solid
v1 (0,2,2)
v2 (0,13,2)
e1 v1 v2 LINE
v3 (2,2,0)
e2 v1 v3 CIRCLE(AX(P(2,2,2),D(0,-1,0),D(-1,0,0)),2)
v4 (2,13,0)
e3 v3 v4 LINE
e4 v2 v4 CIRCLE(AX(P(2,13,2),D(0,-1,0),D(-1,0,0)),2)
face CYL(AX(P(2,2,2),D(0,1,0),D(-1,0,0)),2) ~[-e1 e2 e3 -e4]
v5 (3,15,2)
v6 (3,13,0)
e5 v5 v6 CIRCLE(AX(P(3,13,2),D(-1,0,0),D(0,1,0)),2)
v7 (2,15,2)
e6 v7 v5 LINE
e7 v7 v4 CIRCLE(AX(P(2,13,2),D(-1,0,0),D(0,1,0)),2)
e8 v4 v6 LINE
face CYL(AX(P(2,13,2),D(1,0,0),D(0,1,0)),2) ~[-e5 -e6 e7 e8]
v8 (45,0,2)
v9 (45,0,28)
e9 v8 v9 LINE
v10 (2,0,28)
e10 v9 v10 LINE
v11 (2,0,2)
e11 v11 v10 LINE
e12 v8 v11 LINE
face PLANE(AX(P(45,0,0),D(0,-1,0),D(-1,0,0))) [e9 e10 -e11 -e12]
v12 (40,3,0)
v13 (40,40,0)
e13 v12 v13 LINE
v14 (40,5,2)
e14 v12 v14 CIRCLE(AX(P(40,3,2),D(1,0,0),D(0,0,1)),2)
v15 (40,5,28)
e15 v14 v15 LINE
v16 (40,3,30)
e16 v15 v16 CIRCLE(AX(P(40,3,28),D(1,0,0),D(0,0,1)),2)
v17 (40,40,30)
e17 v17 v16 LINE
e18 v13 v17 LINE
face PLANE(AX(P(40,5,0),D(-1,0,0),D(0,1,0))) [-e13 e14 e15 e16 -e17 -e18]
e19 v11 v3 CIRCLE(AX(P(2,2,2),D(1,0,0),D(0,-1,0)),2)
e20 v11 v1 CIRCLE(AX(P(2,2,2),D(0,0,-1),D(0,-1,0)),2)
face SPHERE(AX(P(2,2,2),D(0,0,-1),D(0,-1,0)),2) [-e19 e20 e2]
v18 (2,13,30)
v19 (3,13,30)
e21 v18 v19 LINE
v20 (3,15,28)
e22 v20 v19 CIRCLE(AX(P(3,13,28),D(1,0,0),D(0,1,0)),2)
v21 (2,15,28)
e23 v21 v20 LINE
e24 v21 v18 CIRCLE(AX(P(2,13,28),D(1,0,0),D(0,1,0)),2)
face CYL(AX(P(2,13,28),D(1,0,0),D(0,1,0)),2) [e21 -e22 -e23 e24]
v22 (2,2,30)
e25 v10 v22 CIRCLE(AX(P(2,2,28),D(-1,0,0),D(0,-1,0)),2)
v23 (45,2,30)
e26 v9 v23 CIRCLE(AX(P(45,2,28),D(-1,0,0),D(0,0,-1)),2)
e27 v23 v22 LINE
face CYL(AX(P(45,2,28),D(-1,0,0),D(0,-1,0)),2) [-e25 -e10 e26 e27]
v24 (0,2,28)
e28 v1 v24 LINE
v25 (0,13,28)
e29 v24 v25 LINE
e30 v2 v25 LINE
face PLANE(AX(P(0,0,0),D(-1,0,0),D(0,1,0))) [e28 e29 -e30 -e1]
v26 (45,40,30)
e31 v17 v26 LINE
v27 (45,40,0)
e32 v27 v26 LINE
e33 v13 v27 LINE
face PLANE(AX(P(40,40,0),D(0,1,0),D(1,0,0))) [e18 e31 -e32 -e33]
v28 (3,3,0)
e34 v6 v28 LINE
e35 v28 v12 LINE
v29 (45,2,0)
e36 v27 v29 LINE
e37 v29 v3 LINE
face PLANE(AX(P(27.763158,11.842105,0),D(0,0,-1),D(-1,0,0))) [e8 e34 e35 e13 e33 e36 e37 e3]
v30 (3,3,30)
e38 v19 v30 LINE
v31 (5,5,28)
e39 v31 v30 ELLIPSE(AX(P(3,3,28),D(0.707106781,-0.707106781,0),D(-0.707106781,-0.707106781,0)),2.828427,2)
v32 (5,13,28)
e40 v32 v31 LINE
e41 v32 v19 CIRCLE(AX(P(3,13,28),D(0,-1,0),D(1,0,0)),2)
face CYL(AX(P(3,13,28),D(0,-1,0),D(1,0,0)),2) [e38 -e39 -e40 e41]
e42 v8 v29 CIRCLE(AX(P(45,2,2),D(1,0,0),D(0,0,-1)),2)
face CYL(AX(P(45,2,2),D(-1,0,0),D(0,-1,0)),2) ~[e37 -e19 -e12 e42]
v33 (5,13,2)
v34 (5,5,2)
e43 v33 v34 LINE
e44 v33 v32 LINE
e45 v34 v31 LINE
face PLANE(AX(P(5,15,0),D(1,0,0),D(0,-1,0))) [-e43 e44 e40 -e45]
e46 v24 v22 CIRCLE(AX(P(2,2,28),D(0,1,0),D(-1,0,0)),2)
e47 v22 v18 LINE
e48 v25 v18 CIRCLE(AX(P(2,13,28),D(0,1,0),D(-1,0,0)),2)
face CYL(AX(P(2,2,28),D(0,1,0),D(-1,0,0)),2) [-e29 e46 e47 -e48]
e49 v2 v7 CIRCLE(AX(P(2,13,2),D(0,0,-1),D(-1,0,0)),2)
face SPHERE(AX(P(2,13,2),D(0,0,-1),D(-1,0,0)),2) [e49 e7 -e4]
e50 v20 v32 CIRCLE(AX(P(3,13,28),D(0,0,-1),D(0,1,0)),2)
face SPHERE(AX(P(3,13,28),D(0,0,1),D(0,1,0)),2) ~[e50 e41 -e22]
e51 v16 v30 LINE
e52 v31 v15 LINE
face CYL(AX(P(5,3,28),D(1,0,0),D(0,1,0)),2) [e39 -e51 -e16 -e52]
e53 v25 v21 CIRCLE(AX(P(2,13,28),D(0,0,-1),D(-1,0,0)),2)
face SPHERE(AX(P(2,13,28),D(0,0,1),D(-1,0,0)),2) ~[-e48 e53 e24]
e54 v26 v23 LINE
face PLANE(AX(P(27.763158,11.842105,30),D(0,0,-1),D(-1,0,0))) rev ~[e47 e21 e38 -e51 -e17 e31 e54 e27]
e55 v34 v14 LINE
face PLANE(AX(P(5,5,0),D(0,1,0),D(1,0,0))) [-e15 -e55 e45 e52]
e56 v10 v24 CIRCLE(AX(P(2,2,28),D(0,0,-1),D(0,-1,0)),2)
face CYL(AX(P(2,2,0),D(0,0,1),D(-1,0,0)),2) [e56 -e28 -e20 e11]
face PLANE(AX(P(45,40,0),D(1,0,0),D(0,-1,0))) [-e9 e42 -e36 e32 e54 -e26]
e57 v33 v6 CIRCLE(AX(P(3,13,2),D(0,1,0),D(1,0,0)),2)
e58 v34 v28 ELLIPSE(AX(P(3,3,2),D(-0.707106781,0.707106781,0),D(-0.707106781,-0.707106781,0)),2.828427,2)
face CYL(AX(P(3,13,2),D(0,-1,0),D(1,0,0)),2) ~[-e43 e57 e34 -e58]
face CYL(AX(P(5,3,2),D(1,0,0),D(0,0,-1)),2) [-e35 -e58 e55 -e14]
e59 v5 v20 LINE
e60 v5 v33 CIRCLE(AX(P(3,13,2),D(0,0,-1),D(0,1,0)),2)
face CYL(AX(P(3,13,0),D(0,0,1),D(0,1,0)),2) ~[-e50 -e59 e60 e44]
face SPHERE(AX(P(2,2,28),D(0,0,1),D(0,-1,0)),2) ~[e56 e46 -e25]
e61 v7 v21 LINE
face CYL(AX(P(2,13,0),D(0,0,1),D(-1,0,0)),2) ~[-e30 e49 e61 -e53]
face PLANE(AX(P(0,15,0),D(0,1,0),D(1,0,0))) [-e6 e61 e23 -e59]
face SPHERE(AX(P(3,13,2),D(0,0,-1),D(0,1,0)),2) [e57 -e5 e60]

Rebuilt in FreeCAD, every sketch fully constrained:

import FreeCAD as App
import Part
import Sketcher
from FreeCAD import Vector


def edges_at(feature, points):
    """Names of the edges that pass closest to the given points."""
    edges = feature.Shape.Edges
    near = lambda p: min(range(len(edges)), key=lambda i: edges[i].distToShape(Part.Vertex(*p))[0])
    return sorted({f"Edge{near(p) + 1}" for p in points})

doc = App.newDocument("Part")
params = doc.addObject("Spreadsheet::Sheet", "Params")
for row, (alias, value) in enumerate([
    ("sketch1_width", "5 mm"),
    ("sketch1_width2", "35 mm"),
    ("sketch1_height", "40 mm"),
    ("sketch1_height2", "10 mm"),
    ("pad1_length", "30 mm"),
    ("fillet_radius", "2 mm"),
    ("fillet2_radius", "2 mm"),
    ("fillet3_radius", "2 mm"),
    ("fillet4_radius", "2 mm"),
    ("fillet5_radius", "2 mm"),
    ("fillet6_radius", "2 mm"),
    ("fillet7_radius", "2 mm"),
], start=1):
    params.set(f"A{row}", alias)
    params.set(f"B{row}", "=" + value)
    params.setAlias(f"B{row}", alias)

body = doc.addObject("PartDesign::Body", "Body")

sketch1 = body.newObject("Sketcher::SketchObject", "Sketch")
sketch1.AttachmentSupport = (doc.getObject("XY_Plane"), [""])
sketch1.MapMode = "FlatFace"
sketch1.addGeometry([
    Part.LineSegment(Vector(45, 0, 0), Vector(45, 40, 0)),
    Part.LineSegment(Vector(45, 40, 0), Vector(40, 40, 0)),
    Part.LineSegment(Vector(40, 40, 0), Vector(40, 5, 0)),
    Part.LineSegment(Vector(40, 5, 0), Vector(5, 5, 0)),
    Part.LineSegment(Vector(5, 5, 0), Vector(5, 15, 0)),
    Part.LineSegment(Vector(5, 15, 0), Vector(0, 15, 0)),
    Part.LineSegment(Vector(0, 15, 0), Vector(0, 0, 0)),
    Part.LineSegment(Vector(0, 0, 0), Vector(45, 0, 0)),
], False)
sketch1.addConstraint([
    Sketcher.Constraint("Coincident", 0, 2, 1, 1),
    Sketcher.Constraint("Coincident", 1, 2, 2, 1),
    Sketcher.Constraint("Coincident", 2, 2, 3, 1),
    Sketcher.Constraint("Coincident", 3, 2, 4, 1),
    Sketcher.Constraint("Coincident", 4, 2, 5, 1),
    Sketcher.Constraint("Coincident", 5, 2, 6, 1),
    Sketcher.Constraint("Coincident", 6, 2, 7, 1),
    Sketcher.Constraint("Coincident", 7, 2, 0, 1),
    Sketcher.Constraint("Vertical", 0),
    Sketcher.Constraint("Horizontal", 1),
    Sketcher.Constraint("Vertical", 2),
    Sketcher.Constraint("Horizontal", 3),
    Sketcher.Constraint("Vertical", 4),
    Sketcher.Constraint("Horizontal", 5),
    Sketcher.Constraint("Vertical", 6),
    Sketcher.Constraint("Horizontal", 7),
    Sketcher.Constraint("Coincident", 6, 2, -1, 1),
    Sketcher.Constraint("Equal", 1, 5),
    Sketcher.Constraint("Equal", 3, 2),
    Sketcher.Constraint("DistanceX", 1, 2, 1, 1, 5.0),
    Sketcher.Constraint("DistanceX", 3, 2, 3, 1, 35.0),
    Sketcher.Constraint("DistanceY", 0, 1, 0, 2, 40.0),
    Sketcher.Constraint("DistanceY", 4, 1, 4, 2, 10.0),
])
sketch1.setExpression("Constraints[19]", "Params.sketch1_width")
sketch1.setExpression("Constraints[20]", "Params.sketch1_width2")
sketch1.setExpression("Constraints[21]", "Params.sketch1_height")
sketch1.setExpression("Constraints[22]", "Params.sketch1_height2")
pad1 = body.newObject("PartDesign::Pad", "Pad")
pad1.Profile = sketch1
pad1.setExpression("Length", "Params.pad1_length")
doc.recompute()

fillet = body.newObject("PartDesign::Fillet", "Fillet")
fillet.Base = (pad1, edges_at(pad1, [(0, 15, 15)]))
fillet.setExpression("Radius", "Params.fillet_radius")
doc.recompute()

fillet2 = body.newObject("PartDesign::Fillet", "Fillet001")
fillet2.Base = (fillet, edges_at(fillet, [(5, 15, 15)]))
fillet2.setExpression("Radius", "Params.fillet2_radius")
doc.recompute()

fillet3 = body.newObject("PartDesign::Fillet", "Fillet002")
fillet3.Base = (fillet2, edges_at(fillet2, [(0, 0, 15)]))
fillet3.setExpression("Radius", "Params.fillet3_radius")
doc.recompute()

fillet4 = body.newObject("PartDesign::Fillet", "Fillet003")
fillet4.Base = (fillet3, edges_at(fillet3, [(22.5, 5, 30)]))
fillet4.setExpression("Radius", "Params.fillet4_radius")
doc.recompute()

fillet5 = body.newObject("PartDesign::Fillet", "Fillet004")
fillet5.Base = (fillet4, edges_at(fillet4, [(22.5, 5, 0)]))
fillet5.setExpression("Radius", "Params.fillet5_radius")
doc.recompute()

fillet6 = body.newObject("PartDesign::Fillet", "Fillet005")
fillet6.Base = (fillet5, edges_at(fillet5, [(5, 8, 30)]))
fillet6.setExpression("Radius", "Params.fillet6_radius")
doc.recompute()

fillet7 = body.newObject("PartDesign::Fillet", "Fillet006")
fillet7.Base = (fillet6, edges_at(fillet6, [(0, 7.5, 0)]))
fillet7.setExpression("Radius", "Params.fillet7_radius")

doc.recompute()
